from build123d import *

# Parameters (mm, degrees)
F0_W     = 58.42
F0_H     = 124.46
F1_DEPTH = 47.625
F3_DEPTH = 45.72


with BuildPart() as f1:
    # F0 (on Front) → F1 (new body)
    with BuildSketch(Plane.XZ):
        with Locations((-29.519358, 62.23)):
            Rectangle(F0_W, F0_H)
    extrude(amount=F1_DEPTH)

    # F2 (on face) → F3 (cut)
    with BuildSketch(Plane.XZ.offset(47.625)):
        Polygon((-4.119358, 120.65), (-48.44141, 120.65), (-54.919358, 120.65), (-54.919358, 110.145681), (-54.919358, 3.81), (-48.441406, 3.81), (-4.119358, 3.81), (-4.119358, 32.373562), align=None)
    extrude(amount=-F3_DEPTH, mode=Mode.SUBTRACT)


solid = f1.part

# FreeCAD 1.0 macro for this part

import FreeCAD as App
import Part
import Sketcher

V = App.Vector
Q = App.Units.Quantity


def add_polygon(sketch, points):
    """Adds a closed chain of lines whose ends are joined by coincident constraints."""
    first, n = sketch.GeometryCount, len(points)
    for a, b in zip(points, points[1:] + points[:1]):
        sketch.addGeometry(Part.LineSegment(App.Vector(*a, 0), App.Vector(*b, 0)), False)
    for i in range(n):
        sketch.addConstraint(Sketcher.Constraint("Coincident", first + i, 2, first + (i + 1) % n, 1))

doc = App.newDocument("Part")
body = doc.addObject("PartDesign::Body", "Body")

sketch1 = doc.addObject("Sketcher::SketchObject", "Sketch")
body.addObject(sketch1)
sketch1.AttachmentSupport = (doc.XZ_Plane, [""])
sketch1.MapMode = "FlatFace"
add_polygon(sketch1, [(-59, 124), (-59, 0), (0, 0), (0, 124)])
sketch1.addConstraint(Sketcher.Constraint("Vertical", 0))
sketch1.addConstraint(Sketcher.Constraint("Horizontal", 1))
sketch1.addConstraint(Sketcher.Constraint("Vertical", 2))
sketch1.addConstraint(Sketcher.Constraint("Horizontal", 3))
sketch1.addConstraint(Sketcher.Constraint("PointOnObject", 0, 2, -1))
sketch1.addConstraint(Sketcher.Constraint("DistanceX", 1, 1, 1, 2, Q("2.3 in")))
sketch1.addConstraint(Sketcher.Constraint("DistanceY", 0, 2, 0, 1, Q("4.9 in")))
sketch1.addConstraint(Sketcher.Constraint("DistanceX", 0, 2, -1, 1, 58.729358))
pad1 = doc.addObject("PartDesign::Pad", "Pad")
body.addObject(pad1)
pad1.Profile = sketch1
pad1.Length = Q("1.875 in")

sketch2 = doc.addObject("Sketcher::SketchObject", "Sketch001")
body.addObject(sketch2)
sketch2.AttachmentSupport = (doc.XZ_Plane, [""])
sketch2.MapMode = "FlatFace"
sketch2.AttachmentOffset = App.Placement(V(0, 0, 1.875 * 25.4), App.Rotation())
add_polygon(sketch2, [(-4, 121), (-55, 121), (-55, 4), (-4, 4)])
sketch2.addConstraint(Sketcher.Constraint("Horizontal", 0))
sketch2.addConstraint(Sketcher.Constraint("Vertical", 1))
sketch2.addConstraint(Sketcher.Constraint("Horizontal", 2))
sketch2.addConstraint(Sketcher.Constraint("Vertical", 3))
sketch2.addConstraint(Sketcher.Constraint("DistanceX", 0, 2, 0, 1, Q("2 in")))
sketch2.addConstraint(Sketcher.Constraint("DistanceY", 1, 2, 1, 1, Q("4.6 in")))
sketch2.addConstraint(Sketcher.Constraint("DistanceY", -1, 1, 0, 2, Q("4.75 in")))
sketch2.addConstraint(Sketcher.Constraint("DistanceX", 0, 2, -1, 1, 54.919358))
pocket1 = doc.addObject("PartDesign::Pocket", "Pocket")
body.addObject(pocket1)
pocket1.Profile = sketch2
pocket1.Length = Q("1.8 in")

doc.recompute()
